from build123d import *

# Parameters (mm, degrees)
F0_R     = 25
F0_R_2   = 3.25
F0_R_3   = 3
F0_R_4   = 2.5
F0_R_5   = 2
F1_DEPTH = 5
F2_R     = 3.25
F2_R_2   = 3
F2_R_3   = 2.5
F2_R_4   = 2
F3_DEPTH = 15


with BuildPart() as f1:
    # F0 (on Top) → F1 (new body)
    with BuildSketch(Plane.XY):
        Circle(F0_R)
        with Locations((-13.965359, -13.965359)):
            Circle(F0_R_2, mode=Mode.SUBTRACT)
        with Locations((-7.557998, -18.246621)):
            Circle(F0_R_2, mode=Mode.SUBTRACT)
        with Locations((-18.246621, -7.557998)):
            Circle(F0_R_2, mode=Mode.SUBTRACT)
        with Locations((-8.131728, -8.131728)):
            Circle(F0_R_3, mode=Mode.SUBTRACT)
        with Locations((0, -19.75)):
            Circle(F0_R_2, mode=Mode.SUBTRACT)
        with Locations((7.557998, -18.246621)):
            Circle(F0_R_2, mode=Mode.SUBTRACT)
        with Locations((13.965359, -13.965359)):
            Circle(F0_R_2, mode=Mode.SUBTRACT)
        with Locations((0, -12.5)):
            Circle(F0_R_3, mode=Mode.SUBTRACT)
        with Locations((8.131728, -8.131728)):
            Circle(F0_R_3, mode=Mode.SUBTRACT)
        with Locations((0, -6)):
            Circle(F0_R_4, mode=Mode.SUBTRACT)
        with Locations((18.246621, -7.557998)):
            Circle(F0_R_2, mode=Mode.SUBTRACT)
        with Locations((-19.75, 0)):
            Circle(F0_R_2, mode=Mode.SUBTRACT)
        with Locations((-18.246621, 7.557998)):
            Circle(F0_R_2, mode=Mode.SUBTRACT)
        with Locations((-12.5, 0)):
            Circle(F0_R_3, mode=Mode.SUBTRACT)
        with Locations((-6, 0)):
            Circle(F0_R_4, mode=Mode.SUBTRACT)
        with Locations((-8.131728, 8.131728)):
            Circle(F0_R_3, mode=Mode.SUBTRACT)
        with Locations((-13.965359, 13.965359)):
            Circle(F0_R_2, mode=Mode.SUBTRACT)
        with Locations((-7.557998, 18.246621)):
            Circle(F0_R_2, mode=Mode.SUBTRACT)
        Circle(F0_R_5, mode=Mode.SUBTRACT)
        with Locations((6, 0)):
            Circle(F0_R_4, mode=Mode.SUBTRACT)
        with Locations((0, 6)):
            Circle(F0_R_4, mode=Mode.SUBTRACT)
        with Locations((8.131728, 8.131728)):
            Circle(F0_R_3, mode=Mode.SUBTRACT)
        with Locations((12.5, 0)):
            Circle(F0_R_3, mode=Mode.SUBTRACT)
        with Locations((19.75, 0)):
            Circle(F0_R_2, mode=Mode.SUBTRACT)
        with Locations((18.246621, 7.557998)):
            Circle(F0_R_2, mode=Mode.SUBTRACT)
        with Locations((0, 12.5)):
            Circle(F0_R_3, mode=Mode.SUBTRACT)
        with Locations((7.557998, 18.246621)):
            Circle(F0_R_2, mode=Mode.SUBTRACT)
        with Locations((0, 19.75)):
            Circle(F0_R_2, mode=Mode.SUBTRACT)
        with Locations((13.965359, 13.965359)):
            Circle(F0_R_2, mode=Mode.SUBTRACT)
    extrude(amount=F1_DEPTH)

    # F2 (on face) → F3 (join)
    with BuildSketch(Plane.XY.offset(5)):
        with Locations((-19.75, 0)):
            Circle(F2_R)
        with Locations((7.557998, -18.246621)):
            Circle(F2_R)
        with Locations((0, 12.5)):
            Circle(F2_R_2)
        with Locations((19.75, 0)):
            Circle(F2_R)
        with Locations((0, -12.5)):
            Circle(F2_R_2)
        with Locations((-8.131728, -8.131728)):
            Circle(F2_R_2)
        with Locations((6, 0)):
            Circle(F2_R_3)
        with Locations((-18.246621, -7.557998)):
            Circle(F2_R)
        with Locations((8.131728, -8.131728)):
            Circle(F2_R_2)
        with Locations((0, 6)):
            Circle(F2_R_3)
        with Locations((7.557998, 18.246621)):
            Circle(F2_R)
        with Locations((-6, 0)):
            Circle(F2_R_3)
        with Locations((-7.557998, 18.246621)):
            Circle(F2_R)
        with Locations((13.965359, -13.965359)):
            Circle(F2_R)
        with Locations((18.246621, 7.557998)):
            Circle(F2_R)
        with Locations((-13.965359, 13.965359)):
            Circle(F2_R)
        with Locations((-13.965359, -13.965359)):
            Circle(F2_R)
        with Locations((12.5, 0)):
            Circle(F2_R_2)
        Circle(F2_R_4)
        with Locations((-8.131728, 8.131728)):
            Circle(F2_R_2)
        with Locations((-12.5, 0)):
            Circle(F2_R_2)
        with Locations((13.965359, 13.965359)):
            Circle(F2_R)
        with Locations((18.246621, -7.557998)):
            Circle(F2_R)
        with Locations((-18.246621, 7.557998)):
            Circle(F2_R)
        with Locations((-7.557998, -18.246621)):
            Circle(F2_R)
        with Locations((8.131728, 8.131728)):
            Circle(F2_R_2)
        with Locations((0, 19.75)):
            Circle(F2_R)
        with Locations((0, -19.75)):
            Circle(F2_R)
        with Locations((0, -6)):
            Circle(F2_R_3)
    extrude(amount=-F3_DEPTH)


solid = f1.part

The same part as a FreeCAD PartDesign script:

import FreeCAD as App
import Part
import Sketcher

V = App.Vector
Q = App.Units.Quantity

doc = App.newDocument("Part")
body = doc.addObject("PartDesign::Body", "Body")

# Sketch on XY plane
sketch1 = body.newObject("Sketcher::SketchObject", "Sketch")
sketch1.AttachmentSupport = (doc.getObject("XY_Plane"), [""])
sketch1.MapMode = "FlatFace"
sketch1.addGeometry(Part.Circle(V(0, 0, 0), V(0, 0, 1), 25), False)
sketch1.addGeometry(Part.Circle(V(-13.965359, -13.965359, 0), V(0, 0, 1), 3.25), False)
sketch1.addGeometry(Part.Circle(V(-7.557998, -18.246621, 0), V(0, 0, 1), 3.25), False)
sketch1.addGeometry(Part.Circle(V(-18.246621, -7.557998, 0), V(0, 0, 1), 3.25), False)
sketch1.addGeometry(Part.Circle(V(-8.131728, -8.131728, 0), V(0, 0, 1), 3), False)
sketch1.addGeometry(Part.Circle(V(0, -19.75, 0), V(0, 0, 1), 3.25), False)
sketch1.addGeometry(Part.Circle(V(7.557998, -18.246621, 0), V(0, 0, 1), 3.25), False)
sketch1.addGeometry(Part.Circle(V(0, -12.5, 0), V(0, 0, 1), 3), False)
sketch1.addGeometry(Part.Circle(V(13.965359, -13.965359, 0), V(0, 0, 1), 3.25), False)
sketch1.addGeometry(Part.Circle(V(0, -6, 0), V(0, 0, 1), 2.5), False)
sketch1.addGeometry(Part.Circle(V(8.131728, -8.131728, 0), V(0, 0, 1), 3), False)
sketch1.addGeometry(Part.Circle(V(18.246621, -7.557998, 0), V(0, 0, 1), 3.25), False)
sketch1.addGeometry(Part.Circle(V(-19.75, 0, 0), V(0, 0, 1), 3.25), False)
sketch1.addGeometry(Part.Circle(V(-12.5, 0, 0), V(0, 0, 1), 3), False)
sketch1.addGeometry(Part.Circle(V(-18.246621, 7.557998, 0), V(0, 0, 1), 3.25), False)
sketch1.addGeometry(Part.Circle(V(-6, 0, 0), V(0, 0, 1), 2.5), False)
sketch1.addGeometry(Part.Circle(V(-8.131728, 8.131728, 0), V(0, 0, 1), 3), False)
sketch1.addGeometry(Part.Circle(V(-13.965359, 13.965359, 0), V(0, 0, 1), 3.25), False)
sketch1.addGeometry(Part.Circle(V(-7.557998, 18.246621, 0), V(0, 0, 1), 3.25), False)
sketch1.addGeometry(Part.Circle(V(0, 0, 0), V(0, 0, 1), 2), False)
sketch1.addGeometry(Part.Circle(V(6, 0, 0), V(0, 0, 1), 2.5), False)
sketch1.addGeometry(Part.Circle(V(0, 6, 0), V(0, 0, 1), 2.5), False)
sketch1.addGeometry(Part.Circle(V(8.131728, 8.131728, 0), V(0, 0, 1), 3), False)
sketch1.addGeometry(Part.Circle(V(12.5, 0, 0), V(0, 0, 1), 3), False)
sketch1.addGeometry(Part.Circle(V(19.75, 0, 0), V(0, 0, 1), 3.25), False)
sketch1.addGeometry(Part.Circle(V(18.246621, 7.557998, 0), V(0, 0, 1), 3.25), False)
sketch1.addGeometry(Part.Circle(V(0, 12.5, 0), V(0, 0, 1), 3), False)
sketch1.addGeometry(Part.Circle(V(0, 19.75, 0), V(0, 0, 1), 3.25), False)
sketch1.addGeometry(Part.Circle(V(7.557998, 18.246621, 0), V(0, 0, 1), 3.25), False)
sketch1.addGeometry(Part.Circle(V(13.965359, 13.965359, 0), V(0, 0, 1), 3.25), False)
sketch1.addConstraint(Sketcher.Constraint("Coincident", 0, 3, -1, 1))
sketch1.addConstraint(Sketcher.Constraint("Coincident", 19, 3, -1, 1))
sketch1.addConstraint(Sketcher.Constraint("Equal", 1, 2))
sketch1.addConstraint(Sketcher.Constraint("Equal", 2, 3))
sketch1.addConstraint(Sketcher.Constraint("Equal", 3, 5))
sketch1.addConstraint(Sketcher.Constraint("Equal", 5, 6))
sketch1.addConstraint(Sketcher.Constraint("Equal", 4, 7))
sketch1.addConstraint(Sketcher.Constraint("Equal", 6, 8))
sketch1.addConstraint(Sketcher.Constraint("Equal", 7, 10))
sketch1.addConstraint(Sketcher.Constraint("Equal", 8, 11))
sketch1.addConstraint(Sketcher.Constraint("Equal", 11, 12))
sketch1.addConstraint(Sketcher.Constraint("Equal", 10, 13))
sketch1.addConstraint(Sketcher.Constraint("Equal", 12, 14))
sketch1.addConstraint(Sketcher.Constraint("Equal", 9, 15))
sketch1.addConstraint(Sketcher.Constraint("Equal", 13, 16))
sketch1.addConstraint(Sketcher.Constraint("Equal", 14, 17))
sketch1.addConstraint(Sketcher.Constraint("Equal", 17, 18))
sketch1.addConstraint(Sketcher.Constraint("Equal", 15, 20))
sketch1.addConstraint(Sketcher.Constraint("Equal", 20, 21))
sketch1.addConstraint(Sketcher.Constraint("Equal", 16, 22))
sketch1.addConstraint(Sketcher.Constraint("Equal", 22, 23))
sketch1.addConstraint(Sketcher.Constraint("Equal", 18, 24))
sketch1.addConstraint(Sketcher.Constraint("Equal", 24, 25))
sketch1.addConstraint(Sketcher.Constraint("Equal", 23, 26))
sketch1.addConstraint(Sketcher.Constraint("Equal", 25, 27))
sketch1.addConstraint(Sketcher.Constraint("Equal", 27, 28))
sketch1.addConstraint(Sketcher.Constraint("Equal", 28, 29))
sketch1.addConstraint(Sketcher.Constraint("Symmetric", 11, 3, 14, 3, -1, 1))
sketch1.addConstraint(Sketcher.Constraint("Symmetric", 10, 3, 16, 3, -1, 1))
sketch1.addConstraint(Sketcher.Constraint("Symmetric", 8, 3, 17, 3, -1, 1))
sketch1.addConstraint(Sketcher.Constraint("Symmetric", 6, 3, 18, 3, -1, 1))
sketch1.addConstraint(Sketcher.Constraint("Symmetric", 15, 3, 20, 3, -1, 1))
sketch1.addConstraint(Sketcher.Constraint("Symmetric", 9, 3, 21, 3, -1, 1))
sketch1.addConstraint(Sketcher.Constraint("Symmetric", 4, 3, 22, 3, -1, 1))
sketch1.addConstraint(Sketcher.Constraint("Symmetric", 13, 3, 23, 3, -1, 1))
sketch1.addConstraint(Sketcher.Constraint("Symmetric", 12, 3, 24, 3, -1, 1))
sketch1.addConstraint(Sketcher.Constraint("Symmetric", 3, 3, 25, 3, -1, 1))
sketch1.addConstraint(Sketcher.Constraint("Symmetric", 7, 3, 26, 3, -1, 1))
sketch1.addConstraint(Sketcher.Constraint("Symmetric", 5, 3, 27, 3, -1, 1))
sketch1.addConstraint(Sketcher.Constraint("Symmetric", 2, 3, 28, 3, -1, 1))
sketch1.addConstraint(Sketcher.Constraint("Symmetric", 1, 3, 29, 3, -1, 1))
sketch1.addConstraint(Sketcher.Constraint("Symmetric", 2, 3, 6, 3, -2))
sketch1.addConstraint(Sketcher.Constraint("Symmetric", 1, 3, 8, 3, -2))
sketch1.addConstraint(Sketcher.Constraint("Symmetric", 4, 3, 10, 3, -2))
sketch1.addConstraint(Sketcher.Constraint("Symmetric", 3, 3, 11, 3, -2))
sketch1.addConstraint(Sketcher.Constraint("PointOnObject", 5, 3, -2))
sketch1.addConstraint(Sketcher.Constraint("PointOnObject", 7, 3, -2))
sketch1.addConstraint(Sketcher.Constraint("PointOnObject", 9, 3, -2))
sketch1.addConstraint(Sketcher.Constraint("PointOnObject", 12, 3, -1))
sketch1.addConstraint(Sketcher.Constraint("PointOnObject", 13, 3, -1))
sketch1.addConstraint(Sketcher.Constraint("PointOnObject", 15, 3, -1))
sketch1.addConstraint(Sketcher.Constraint("Diameter", 0, Q("50 mm")))
sketch1.addConstraint(Sketcher.Constraint("Diameter", 4, Q("6 mm")))
sketch1.addConstraint(Sketcher.Constraint("Diameter", 9, Q("5 mm")))
sketch1.addConstraint(Sketcher.Constraint("Diameter", 19, Q("4 mm")))
sketch1.addConstraint(Sketcher.Constraint("Diameter", 1, Q("6.5 mm")))
sketch1.addConstraint(Sketcher.Constraint("DistanceY", 9, 3, -1, 1, Q("6 mm")))
sketch1.addConstraint(Sketcher.Constraint("DistanceX", 15, 3, -1, 1, Q("6 mm")))
sketch1.addConstraint(Sketcher.Constraint("DistanceY", 7, 3, -1, 1, Q("12.5 mm")))
sketch1.addConstraint(Sketcher.Constraint("DistanceX", 13, 3, -1, 1, Q("12.5 mm")))
sketch1.addConstraint(Sketcher.Constraint("DistanceY", 5, 3, -1, 1, Q("19.75 mm")))
sketch1.addConstraint(Sketcher.Constraint("DistanceX", 12, 3, -1, 1, Q("19.75 mm")))
sketch1.addConstraint(Sketcher.Constraint("DistanceX", 2, 3, -1, 1, Q("7.557998 mm")))
sketch1.addConstraint(Sketcher.Constraint("DistanceY", 3, 3, -1, 1, Q("7.557998 mm")))
sketch1.addConstraint(Sketcher.Constraint("DistanceX", 1, 3, -1, 1, Q("13.965359 mm")))
sketch1.addConstraint(Sketcher.Constraint("DistanceY", 1, 3, -1, 1, Q("13.965359 mm")))
sketch1.addConstraint(Sketcher.Constraint("DistanceY", 2, 3, -1, 1, Q("18.246621 mm")))
sketch1.addConstraint(Sketcher.Constraint("DistanceX", 3, 3, -1, 1, Q("18.246621 mm")))
sketch1.addConstraint(Sketcher.Constraint("DistanceX", 4, 3, -1, 1, Q("8.131728 mm")))
sketch1.addConstraint(Sketcher.Constraint("DistanceY", 4, 3, -1, 1, Q("8.131728 mm")))
pad1 = body.newObject("PartDesign::Pad", "Pad")
pad1.Profile = sketch1
pad1.Length = 5

# Sketch on XY plane
sketch2 = body.newObject("Sketcher::SketchObject", "Sketch001")
sketch2.AttachmentSupport = (doc.getObject("XY_Plane"), [""])
sketch2.MapMode = "FlatFace"
sketch2.AttachmentOffset = App.Placement(V(0, 0, 5), App.Rotation())
sketch2.addGeometry(Part.Circle(V(-19.75, 0, 0), V(0, 0, 1), 3.25), False)
sketch2.addGeometry(Part.Circle(V(7.557998, -18.246621, 0), V(0, 0, 1), 3.25), False)
sketch2.addGeometry(Part.Circle(V(0, 12.5, 0), V(0, 0, 1), 3), False)
sketch2.addGeometry(Part.Circle(V(19.75, 0, 0), V(0, 0, 1), 3.25), False)
sketch2.addGeometry(Part.Circle(V(0, -12.5, 0), V(0, 0, 1), 3), False)
sketch2.addGeometry(Part.Circle(V(-8.131728, -8.131728, 0), V(0, 0, 1), 3), False)
sketch2.addGeometry(Part.Circle(V(6, 0, 0), V(0, 0, 1), 2.5), False)
sketch2.addGeometry(Part.Circle(V(-18.246621, -7.557998, 0), V(0, 0, 1), 3.25), False)
sketch2.addGeometry(Part.Circle(V(8.131728, -8.131728, 0), V(0, 0, 1), 3), False)
sketch2.addGeometry(Part.Circle(V(0, 6, 0), V(0, 0, 1), 2.5), False)
sketch2.addGeometry(Part.Circle(V(7.557998, 18.246621, 0), V(0, 0, 1), 3.25), False)
sketch2.addGeometry(Part.Circle(V(-6, 0, 0), V(0, 0, 1), 2.5), False)
sketch2.addGeometry(Part.Circle(V(-7.557998, 18.246621, 0), V(0, 0, 1), 3.25), False)
sketch2.addGeometry(Part.Circle(V(13.965359, -13.965359, 0), V(0, 0, 1), 3.25), False)
sketch2.addGeometry(Part.Circle(V(18.246621, 7.557998, 0), V(0, 0, 1), 3.25), False)
sketch2.addGeometry(Part.Circle(V(-13.965359, 13.965359, 0), V(0, 0, 1), 3.25), False)
sketch2.addGeometry(Part.Circle(V(-13.965359, -13.965359, 0), V(0, 0, 1), 3.25), False)
sketch2.addGeometry(Part.Circle(V(12.5, 0, 0), V(0, 0, 1), 3), False)
sketch2.addGeometry(Part.Circle(V(0, 0, 0), V(0, 0, 1), 2), False)
sketch2.addGeometry(Part.Circle(V(-8.131728, 8.131728, 0), V(0, 0, 1), 3), False)
sketch2.addGeometry(Part.Circle(V(-12.5, 0, 0), V(0, 0, 1), 3), False)
sketch2.addGeometry(Part.Circle(V(13.965359, 13.965359, 0), V(0, 0, 1), 3.25), False)
sketch2.addGeometry(Part.Circle(V(18.246621, -7.557998, 0), V(0, 0, 1), 3.25), False)
sketch2.addGeometry(Part.Circle(V(-18.246621, 7.557998, 0), V(0, 0, 1), 3.25), False)
sketch2.addGeometry(Part.Circle(V(-7.557998, -18.246621, 0), V(0, 0, 1), 3.25), False)
sketch2.addGeometry(Part.Circle(V(8.131728, 8.131728, 0), V(0, 0, 1), 3), False)
sketch2.addGeometry(Part.Circle(V(0, 19.75, 0), V(0, 0, 1), 3.25), False)
sketch2.addGeometry(Part.Circle(V(0, -19.75, 0), V(0, 0, 1), 3.25), False)
sketch2.addGeometry(Part.Circle(V(0, -6, 0), V(0, 0, 1), 2.5), False)
sketch2.addConstraint(Sketcher.Constraint("Coincident", 18, 3, -1, 1))
sketch2.addConstraint(Sketcher.Constraint("Equal", 0, 1))
sketch2.addConstraint(Sketcher.Constraint("Equal", 1, 3))
sketch2.addConstraint(Sketcher.Constraint("Equal", 2, 4))
sketch2.addConstraint(Sketcher.Constraint("Equal", 4, 5))
sketch2.addConstraint(Sketcher.Constraint("Equal", 3, 7))
sketch2.addConstraint(Sketcher.Constraint("Equal", 5, 8))
sketch2.addConstraint(Sketcher.Constraint("Equal", 6, 9))
sketch2.addConstraint(Sketcher.Constraint("Equal", 7, 10))
sketch2.addConstraint(Sketcher.Constraint("Equal", 9, 11))
sketch2.addConstraint(Sketcher.Constraint("Equal", 10, 12))
sketch2.addConstraint(Sketcher.Constraint("Equal", 12, 13))
sketch2.addConstraint(Sketcher.Constraint("Equal", 13, 14))
sketch2.addConstraint(Sketcher.Constraint("Equal", 14, 15))
sketch2.addConstraint(Sketcher.Constraint("Equal", 15, 16))
sketch2.addConstraint(Sketcher.Constraint("Equal", 8, 17))
sketch2.addConstraint(Sketcher.Constraint("Equal", 17, 19))
sketch2.addConstraint(Sketcher.Constraint("Equal", 19, 20))
sketch2.addConstraint(Sketcher.Constraint("Equal", 16, 21))
sketch2.addConstraint(Sketcher.Constraint("Equal", 21, 22))
sketch2.addConstraint(Sketcher.Constraint("Equal", 22, 23))
sketch2.addConstraint(Sketcher.Constraint("Equal", 23, 24))
sketch2.addConstraint(Sketcher.Constraint("Equal", 20, 25))
sketch2.addConstraint(Sketcher.Constraint("Equal", 24, 26))
sketch2.addConstraint(Sketcher.Constraint("Equal", 26, 27))
sketch2.addConstraint(Sketcher.Constraint("Equal", 11, 28))
sketch2.addConstraint(Sketcher.Constraint("Symmetric", 0, 3, 3, 3, -1, 1))
sketch2.addConstraint(Sketcher.Constraint("Symmetric", 2, 3, 4, 3, -1, 1))
sketch2.addConstraint(Sketcher.Constraint("Symmetric", 6, 3, 11, 3, -1, 1))
sketch2.addConstraint(Sketcher.Constraint("Symmetric", 1, 3, 12, 3, -1, 1))
sketch2.addConstraint(Sketcher.Constraint("Symmetric", 7, 3, 14, 3, -1, 1))
sketch2.addConstraint(Sketcher.Constraint("Symmetric", 13, 3, 15, 3, -1, 1))
sketch2.addConstraint(Sketcher.Constraint("Symmetric", 8, 3, 19, 3, -1, 1))
sketch2.addConstraint(Sketcher.Constraint("Symmetric", 17, 3, 20, 3, -1, 1))
sketch2.addConstraint(Sketcher.Constraint("Symmetric", 16, 3, 21, 3, -1, 1))
sketch2.addConstraint(Sketcher.Constraint("Symmetric", 22, 3, 23, 3, -1, 1))
sketch2.addConstraint(Sketcher.Constraint("Symmetric", 10, 3, 24, 3, -1, 1))
sketch2.addConstraint(Sketcher.Constraint("Symmetric", 5, 3, 25, 3, -1, 1))
sketch2.addConstraint(Sketcher.Constraint("Symmetric", 26, 3, 27, 3, -1, 1))
sketch2.addConstraint(Sketcher.Constraint("Symmetric", 9, 3, 28, 3, -1, 1))
sketch2.addConstraint(Sketcher.Constraint("Symmetric", 5, 3, 8, 3, -2))
sketch2.addConstraint(Sketcher.Constraint("Symmetric", 10, 3, 12, 3, -2))
sketch2.addConstraint(Sketcher.Constraint("Symmetric", 13, 3, 16, 3, -2))
sketch2.addConstraint(Sketcher.Constraint("Symmetric", 7, 3, 22, 3, -2))
sketch2.addConstraint(Sketcher.Constraint("PointOnObject", 0, 3, -1))
sketch2.addConstraint(Sketcher.Constraint("PointOnObject", 2, 3, -2))
sketch2.addConstraint(Sketcher.Constraint("PointOnObject", 6, 3, -1))
sketch2.addConstraint(Sketcher.Constraint("PointOnObject", 9, 3, -2))
sketch2.addConstraint(Sketcher.Constraint("PointOnObject", 17, 3, -1))
sketch2.addConstraint(Sketcher.Constraint("PointOnObject", 26, 3, -2))
sketch2.addConstraint(Sketcher.Constraint("Diameter", 2, Q("6 mm")))
sketch2.addConstraint(Sketcher.Constraint("Diameter", 6, Q("5 mm")))
sketch2.addConstraint(Sketcher.Constraint("Diameter", 18, Q("4 mm")))
sketch2.addConstraint(Sketcher.Constraint("Diameter", 0, Q("6.5 mm")))
sketch2.addConstraint(Sketcher.Constraint("DistanceX", -1, 1, 6, 3, Q("6 mm")))
sketch2.addConstraint(Sketcher.Constraint("DistanceY", -1, 1, 9, 3, Q("6 mm")))
sketch2.addConstraint(Sketcher.Constraint("DistanceY", 4, 3, 2, 3, Q("25 mm")))
sketch2.addConstraint(Sketcher.Constraint("DistanceX", -1, 1, 17, 3, Q("12.5 mm")))
sketch2.addConstraint(Sketcher.Constraint("DistanceX", 0, 3, 3, 3, Q("39.5 mm")))
sketch2.addConstraint(Sketcher.Constraint("DistanceY", -1, 1, 26, 3, Q("19.75 mm")))
sketch2.addConstraint(Sketcher.Constraint("DistanceX", -1, 1, 1, 3, Q("7.557998 mm")))
sketch2.addConstraint(Sketcher.Constraint("DistanceY", 7, 3, -1, 1, Q("7.557998 mm")))
sketch2.addConstraint(Sketcher.Constraint("DistanceY", 1, 3, -1, 1, Q("18.246621 mm")))
sketch2.addConstraint(Sketcher.Constraint("DistanceX", 5, 3, -1, 1, Q("8.131728 mm")))
sketch2.addConstraint(Sketcher.Constraint("DistanceY", 5, 3, -1, 1, Q("8.131728 mm")))
sketch2.addConstraint(Sketcher.Constraint("DistanceX", 7, 3, -1, 1, Q("18.246621 mm")))
sketch2.addConstraint(Sketcher.Constraint("DistanceX", -1, 1, 13, 3, Q("13.965359 mm")))
sketch2.addConstraint(Sketcher.Constraint("DistanceY", 13, 3, -1, 1, Q("13.965359 mm")))
pad2 = body.newObject("PartDesign::Pad", "Pad001")
pad2.Profile = sketch2
pad2.Length = 15
pad2.Reversed = True

doc.recompute()
